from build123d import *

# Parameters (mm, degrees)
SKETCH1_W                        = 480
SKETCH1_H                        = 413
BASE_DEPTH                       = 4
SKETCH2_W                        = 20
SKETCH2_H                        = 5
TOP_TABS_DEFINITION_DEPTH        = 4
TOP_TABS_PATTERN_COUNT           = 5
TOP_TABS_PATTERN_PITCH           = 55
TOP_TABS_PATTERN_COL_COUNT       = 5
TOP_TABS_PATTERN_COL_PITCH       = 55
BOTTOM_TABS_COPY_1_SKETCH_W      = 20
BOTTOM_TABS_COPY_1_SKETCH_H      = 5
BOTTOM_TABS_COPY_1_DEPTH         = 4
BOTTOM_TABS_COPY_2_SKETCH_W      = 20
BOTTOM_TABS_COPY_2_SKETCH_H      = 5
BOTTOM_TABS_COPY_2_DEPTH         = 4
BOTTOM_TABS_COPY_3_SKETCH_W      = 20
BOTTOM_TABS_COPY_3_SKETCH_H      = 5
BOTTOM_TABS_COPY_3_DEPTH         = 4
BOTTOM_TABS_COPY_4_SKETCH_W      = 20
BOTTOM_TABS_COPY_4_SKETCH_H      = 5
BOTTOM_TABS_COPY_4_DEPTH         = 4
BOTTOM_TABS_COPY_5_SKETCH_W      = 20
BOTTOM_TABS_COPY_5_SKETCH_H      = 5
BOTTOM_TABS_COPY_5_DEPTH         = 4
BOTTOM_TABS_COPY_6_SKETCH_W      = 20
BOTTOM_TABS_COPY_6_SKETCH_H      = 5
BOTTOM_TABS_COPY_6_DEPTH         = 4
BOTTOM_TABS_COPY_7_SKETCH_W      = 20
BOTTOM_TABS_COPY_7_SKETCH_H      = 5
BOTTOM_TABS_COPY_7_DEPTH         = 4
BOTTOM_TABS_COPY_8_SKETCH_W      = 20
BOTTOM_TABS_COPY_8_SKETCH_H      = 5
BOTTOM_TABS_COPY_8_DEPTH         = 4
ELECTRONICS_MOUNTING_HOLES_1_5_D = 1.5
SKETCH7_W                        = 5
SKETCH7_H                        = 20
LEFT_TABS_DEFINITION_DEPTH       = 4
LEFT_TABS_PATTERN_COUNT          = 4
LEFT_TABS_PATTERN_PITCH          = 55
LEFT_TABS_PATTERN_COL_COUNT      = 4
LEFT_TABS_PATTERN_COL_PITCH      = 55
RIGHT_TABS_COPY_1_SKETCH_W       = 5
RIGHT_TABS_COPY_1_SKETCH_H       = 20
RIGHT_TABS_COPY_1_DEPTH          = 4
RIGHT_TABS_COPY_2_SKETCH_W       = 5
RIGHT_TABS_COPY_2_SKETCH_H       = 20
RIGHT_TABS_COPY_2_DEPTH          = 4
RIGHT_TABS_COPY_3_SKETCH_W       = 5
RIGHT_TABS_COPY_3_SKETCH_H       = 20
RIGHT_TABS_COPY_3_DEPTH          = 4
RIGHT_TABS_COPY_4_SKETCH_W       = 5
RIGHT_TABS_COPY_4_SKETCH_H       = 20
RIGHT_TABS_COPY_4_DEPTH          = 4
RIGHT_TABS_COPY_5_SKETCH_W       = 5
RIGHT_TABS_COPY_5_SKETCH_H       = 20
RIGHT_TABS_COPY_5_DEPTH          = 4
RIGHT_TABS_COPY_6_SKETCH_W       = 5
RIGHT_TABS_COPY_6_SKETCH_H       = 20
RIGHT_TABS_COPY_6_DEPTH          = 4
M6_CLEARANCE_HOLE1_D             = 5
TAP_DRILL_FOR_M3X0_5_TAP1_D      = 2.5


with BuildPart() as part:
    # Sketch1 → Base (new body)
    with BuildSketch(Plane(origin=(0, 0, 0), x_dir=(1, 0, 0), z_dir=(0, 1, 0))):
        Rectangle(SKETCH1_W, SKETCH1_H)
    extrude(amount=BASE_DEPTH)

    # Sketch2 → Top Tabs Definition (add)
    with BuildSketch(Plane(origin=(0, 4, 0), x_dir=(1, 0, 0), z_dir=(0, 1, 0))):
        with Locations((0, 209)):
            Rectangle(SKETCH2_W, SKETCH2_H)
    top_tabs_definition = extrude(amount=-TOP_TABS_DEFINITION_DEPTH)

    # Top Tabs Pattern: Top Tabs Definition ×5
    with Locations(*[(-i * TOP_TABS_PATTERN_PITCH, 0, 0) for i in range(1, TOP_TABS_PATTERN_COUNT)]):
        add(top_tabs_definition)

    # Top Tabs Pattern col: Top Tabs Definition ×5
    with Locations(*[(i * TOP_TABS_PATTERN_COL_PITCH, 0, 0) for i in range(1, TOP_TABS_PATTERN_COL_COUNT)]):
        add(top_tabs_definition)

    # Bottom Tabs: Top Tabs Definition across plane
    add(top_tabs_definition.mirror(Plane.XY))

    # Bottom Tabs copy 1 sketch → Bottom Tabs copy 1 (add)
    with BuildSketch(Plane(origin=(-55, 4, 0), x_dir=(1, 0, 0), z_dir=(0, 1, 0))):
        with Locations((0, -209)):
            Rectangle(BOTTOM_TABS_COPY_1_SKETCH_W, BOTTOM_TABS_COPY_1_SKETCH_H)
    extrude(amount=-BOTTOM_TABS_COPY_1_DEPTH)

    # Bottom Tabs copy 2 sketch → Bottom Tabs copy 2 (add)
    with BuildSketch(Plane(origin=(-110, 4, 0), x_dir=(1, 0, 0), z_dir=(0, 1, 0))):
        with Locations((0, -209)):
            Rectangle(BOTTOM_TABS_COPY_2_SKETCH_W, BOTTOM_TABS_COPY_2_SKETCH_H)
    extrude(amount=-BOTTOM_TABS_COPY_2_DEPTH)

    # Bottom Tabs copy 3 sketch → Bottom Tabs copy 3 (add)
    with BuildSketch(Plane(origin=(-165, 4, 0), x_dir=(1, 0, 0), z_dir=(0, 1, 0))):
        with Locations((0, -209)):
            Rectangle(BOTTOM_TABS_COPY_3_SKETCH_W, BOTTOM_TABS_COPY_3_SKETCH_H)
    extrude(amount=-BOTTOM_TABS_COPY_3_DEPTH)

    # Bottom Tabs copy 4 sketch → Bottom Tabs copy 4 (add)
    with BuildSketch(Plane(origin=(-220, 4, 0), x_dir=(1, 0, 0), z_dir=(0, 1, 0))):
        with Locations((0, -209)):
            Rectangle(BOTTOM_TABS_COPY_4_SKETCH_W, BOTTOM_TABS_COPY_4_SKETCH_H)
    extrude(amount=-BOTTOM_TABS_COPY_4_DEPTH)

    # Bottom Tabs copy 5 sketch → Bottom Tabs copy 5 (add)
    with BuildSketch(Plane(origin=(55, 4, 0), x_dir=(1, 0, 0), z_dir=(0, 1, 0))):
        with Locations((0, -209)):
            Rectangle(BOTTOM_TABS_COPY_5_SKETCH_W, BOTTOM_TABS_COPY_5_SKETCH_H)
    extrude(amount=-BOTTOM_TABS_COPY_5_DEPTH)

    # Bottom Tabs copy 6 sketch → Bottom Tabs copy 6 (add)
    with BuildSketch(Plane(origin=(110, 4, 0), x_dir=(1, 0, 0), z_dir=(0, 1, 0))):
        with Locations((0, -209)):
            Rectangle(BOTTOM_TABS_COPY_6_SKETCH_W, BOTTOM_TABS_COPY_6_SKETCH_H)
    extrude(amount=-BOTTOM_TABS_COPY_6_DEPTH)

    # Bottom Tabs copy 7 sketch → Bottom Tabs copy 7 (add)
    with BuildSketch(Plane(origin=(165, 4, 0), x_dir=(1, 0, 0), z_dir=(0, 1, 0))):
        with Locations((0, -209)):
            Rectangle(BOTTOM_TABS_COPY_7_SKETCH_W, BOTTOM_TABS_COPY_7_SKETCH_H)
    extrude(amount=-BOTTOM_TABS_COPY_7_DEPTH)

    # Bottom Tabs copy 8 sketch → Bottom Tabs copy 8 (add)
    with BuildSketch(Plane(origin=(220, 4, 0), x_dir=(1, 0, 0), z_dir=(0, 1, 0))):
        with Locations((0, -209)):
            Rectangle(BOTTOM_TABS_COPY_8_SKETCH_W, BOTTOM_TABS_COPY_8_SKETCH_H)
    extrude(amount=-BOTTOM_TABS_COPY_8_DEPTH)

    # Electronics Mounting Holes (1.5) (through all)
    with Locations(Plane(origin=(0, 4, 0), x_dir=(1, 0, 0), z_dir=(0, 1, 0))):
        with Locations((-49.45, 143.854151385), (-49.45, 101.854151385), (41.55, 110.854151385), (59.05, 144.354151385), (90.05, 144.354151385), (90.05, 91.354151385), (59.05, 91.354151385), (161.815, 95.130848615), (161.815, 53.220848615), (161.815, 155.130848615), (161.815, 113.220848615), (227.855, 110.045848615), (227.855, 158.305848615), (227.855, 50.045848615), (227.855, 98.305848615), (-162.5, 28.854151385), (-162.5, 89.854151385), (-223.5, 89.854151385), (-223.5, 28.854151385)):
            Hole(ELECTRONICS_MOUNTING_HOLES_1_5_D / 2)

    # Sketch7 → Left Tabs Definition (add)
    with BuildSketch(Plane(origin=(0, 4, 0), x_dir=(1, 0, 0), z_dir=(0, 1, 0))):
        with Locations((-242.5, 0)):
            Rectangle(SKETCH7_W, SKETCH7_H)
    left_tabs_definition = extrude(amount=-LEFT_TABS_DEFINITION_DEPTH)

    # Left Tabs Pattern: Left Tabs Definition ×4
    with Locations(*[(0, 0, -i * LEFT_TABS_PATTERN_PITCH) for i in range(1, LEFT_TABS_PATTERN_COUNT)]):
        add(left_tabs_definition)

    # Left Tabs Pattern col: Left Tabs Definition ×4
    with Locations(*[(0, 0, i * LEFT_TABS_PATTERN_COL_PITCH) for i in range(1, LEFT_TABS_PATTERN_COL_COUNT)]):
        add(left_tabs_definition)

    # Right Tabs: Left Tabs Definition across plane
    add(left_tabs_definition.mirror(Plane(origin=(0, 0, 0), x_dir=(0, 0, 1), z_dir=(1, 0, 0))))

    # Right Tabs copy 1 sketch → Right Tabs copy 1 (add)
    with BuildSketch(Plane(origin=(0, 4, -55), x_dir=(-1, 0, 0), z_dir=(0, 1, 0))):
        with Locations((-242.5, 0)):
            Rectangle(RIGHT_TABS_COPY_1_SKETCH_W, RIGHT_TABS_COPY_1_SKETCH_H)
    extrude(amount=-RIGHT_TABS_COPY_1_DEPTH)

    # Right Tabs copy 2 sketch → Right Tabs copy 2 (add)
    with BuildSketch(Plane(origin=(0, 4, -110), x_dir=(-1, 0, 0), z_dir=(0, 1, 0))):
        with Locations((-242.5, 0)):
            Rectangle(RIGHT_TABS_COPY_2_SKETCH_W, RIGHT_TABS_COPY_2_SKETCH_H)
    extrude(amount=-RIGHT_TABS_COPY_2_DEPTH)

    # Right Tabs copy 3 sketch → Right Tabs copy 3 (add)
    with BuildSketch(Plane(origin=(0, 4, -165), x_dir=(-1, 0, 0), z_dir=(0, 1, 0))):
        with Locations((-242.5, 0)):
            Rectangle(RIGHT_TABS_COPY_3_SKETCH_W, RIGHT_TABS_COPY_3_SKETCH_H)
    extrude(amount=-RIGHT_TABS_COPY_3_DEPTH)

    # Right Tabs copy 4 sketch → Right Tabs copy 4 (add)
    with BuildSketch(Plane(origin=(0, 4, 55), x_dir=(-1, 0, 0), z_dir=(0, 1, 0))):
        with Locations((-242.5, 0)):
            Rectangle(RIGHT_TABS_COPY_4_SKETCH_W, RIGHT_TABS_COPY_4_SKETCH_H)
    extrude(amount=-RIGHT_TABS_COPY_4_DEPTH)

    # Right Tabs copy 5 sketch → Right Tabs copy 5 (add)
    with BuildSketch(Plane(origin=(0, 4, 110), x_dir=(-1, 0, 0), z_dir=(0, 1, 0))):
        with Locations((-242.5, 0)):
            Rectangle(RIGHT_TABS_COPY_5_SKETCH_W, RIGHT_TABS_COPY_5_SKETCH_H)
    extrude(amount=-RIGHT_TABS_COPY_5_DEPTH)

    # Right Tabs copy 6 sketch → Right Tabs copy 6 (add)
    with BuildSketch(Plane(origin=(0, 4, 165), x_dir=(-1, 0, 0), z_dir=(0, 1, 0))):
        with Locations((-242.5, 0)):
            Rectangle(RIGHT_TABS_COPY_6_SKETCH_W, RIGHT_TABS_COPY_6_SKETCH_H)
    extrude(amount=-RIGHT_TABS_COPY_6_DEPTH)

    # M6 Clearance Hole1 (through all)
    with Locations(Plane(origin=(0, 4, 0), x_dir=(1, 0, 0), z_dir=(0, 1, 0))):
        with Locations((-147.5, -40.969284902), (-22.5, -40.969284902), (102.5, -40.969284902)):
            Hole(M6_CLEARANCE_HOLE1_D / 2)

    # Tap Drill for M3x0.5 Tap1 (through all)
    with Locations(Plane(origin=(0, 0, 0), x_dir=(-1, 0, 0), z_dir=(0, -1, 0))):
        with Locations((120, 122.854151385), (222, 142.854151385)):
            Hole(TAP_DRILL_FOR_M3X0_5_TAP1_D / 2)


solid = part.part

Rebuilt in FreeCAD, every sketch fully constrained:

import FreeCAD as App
import Part
import Sketcher

V = App.Vector


def add_polygon(sketch, points):
    """Adds a closed chain of lines whose ends are joined by coincident constraints."""
    first, n = sketch.GeometryCount, len(points)
    for a, b in zip(points, points[1:] + points[:1]):
        sketch.addGeometry(Part.LineSegment(App.Vector(*a, 0), App.Vector(*b, 0)), False)
    for i in range(n):
        sketch.addConstraint(Sketcher.Constraint("Coincident", first + i, 2, first + (i + 1) % n, 1))

doc = App.newDocument("Part")
body = doc.addObject("PartDesign::Body", "Body")

# Sketch on XZ plane
sketch1 = body.newObject("Sketcher::SketchObject", "Sketch")
sketch1.AttachmentSupport = (doc.getObject("XZ_Plane"), [""])
sketch1.MapMode = "FlatFace"
add_polygon(sketch1, [(-240, -206), (-240, 206), (240, 206), (240, -206)])  # lines 0-3
sketch1.addConstraint([
    Sketcher.Constraint("Vertical", 0),
    Sketcher.Constraint("Horizontal", 1),
    Sketcher.Constraint("Vertical", 2),
    Sketcher.Constraint("Horizontal", 3),
    Sketcher.Constraint("Symmetric", 0, 2, 2, 2, -1, 1),
    Sketcher.Constraint("DistanceX", 1, 1, 1, 2, 480.0),
    Sketcher.Constraint("DistanceY", 0, 1, 0, 2, 413.0),
])
pad1 = body.newObject("PartDesign::Pad", "Pad")
pad1.Profile = sketch1
pad1.Length = 4
pad1.Reversed = True

# Sketch on XZ plane
sketch2 = body.newObject("Sketcher::SketchObject", "Sketch001")
sketch2.AttachmentSupport = (doc.getObject("XZ_Plane"), [""])
sketch2.MapMode = "FlatFace"
sketch2.AttachmentOffset = App.Placement(V(0, 0, -4), App.Rotation())
add_polygon(sketch2, [(-10, -212), (-10, -206), (10, -206), (10, -212)])  # lines 0-3
sketch2.addConstraint([
    Sketcher.Constraint("Vertical", 0),
    Sketcher.Constraint("Horizontal", 1),
    Sketcher.Constraint("Vertical", 2),
    Sketcher.Constraint("Horizontal", 3),
    Sketcher.Constraint("DistanceX", 1, 1, 1, 2, 20.0),
    Sketcher.Constraint("DistanceY", 0, 1, 0, 2, 5.0),
    Sketcher.Constraint("DistanceX", 0, 2, -1, 1, 10.0),
    Sketcher.Constraint("DistanceY", 0, 2, -1, 1, 206.5),
])
pad2 = body.newObject("PartDesign::Pad", "Pad001")
pad2.Profile = sketch2
pad2.Length = 4
doc.recompute()

linearpattern = body.newObject("PartDesign::LinearPattern", "LinearPattern")
linearpattern.Originals = [pad2]
linearpattern.Direction = (doc.getObject("X_Axis"), [""])
linearpattern.Mode = "offset"
linearpattern.Offset = 55
linearpattern.Occurrences = 5
linearpattern.Reversed = True
body.Tip = linearpattern
doc.recompute()

linearpattern2 = body.newObject("PartDesign::LinearPattern", "LinearPattern001")
linearpattern2.Originals = [pad2]
linearpattern2.Direction = (doc.getObject("X_Axis"), [""])
linearpattern2.Mode = "offset"
linearpattern2.Offset = 55
linearpattern2.Occurrences = 5
body.Tip = linearpattern2
doc.recompute()

mirrored = body.newObject("PartDesign::Mirrored", "Mirrored")
mirrored.Originals = [pad2]
mirrored.MirrorPlane = (doc.getObject("XY_Plane"), [""])
body.Tip = mirrored

# Sketch on XZ plane
sketch3 = body.newObject("Sketcher::SketchObject", "Sketch002")
sketch3.AttachmentSupport = (doc.getObject("XZ_Plane"), [""])
sketch3.MapMode = "FlatFace"
sketch3.AttachmentOffset = App.Placement(V(0, 0, -4), App.Rotation())
add_polygon(sketch3, [(-65, 206), (-65, 212), (-45, 212), (-45, 206)])  # lines 0-3
sketch3.addConstraint([
    Sketcher.Constraint("Vertical", 0),
    Sketcher.Constraint("Horizontal", 1),
    Sketcher.Constraint("Vertical", 2),
    Sketcher.Constraint("Horizontal", 3),
    Sketcher.Constraint("DistanceX", 1, 1, 1, 2, 20.0),
    Sketcher.Constraint("DistanceY", 0, 1, 0, 2, 5.0),
    Sketcher.Constraint("DistanceX", 0, 2, -1, 1, 65.0),
    Sketcher.Constraint("DistanceY", -1, 1, 0, 2, 211.5),
])
pad3 = body.newObject("PartDesign::Pad", "Pad002")
pad3.Profile = sketch3
pad3.Length = 4

# Sketch on XZ plane
sketch4 = body.newObject("Sketcher::SketchObject", "Sketch003")
sketch4.AttachmentSupport = (doc.getObject("XZ_Plane"), [""])
sketch4.MapMode = "FlatFace"
sketch4.AttachmentOffset = App.Placement(V(0, 0, -4), App.Rotation())
add_polygon(sketch4, [(-120, 206), (-120, 212), (-100, 212), (-100, 206)])  # lines 0-3
sketch4.addConstraint([
    Sketcher.Constraint("Vertical", 0),
    Sketcher.Constraint("Horizontal", 1),
    Sketcher.Constraint("Vertical", 2),
    Sketcher.Constraint("Horizontal", 3),
    Sketcher.Constraint("DistanceX", 1, 1, 1, 2, 20.0),
    Sketcher.Constraint("DistanceY", 0, 1, 0, 2, 5.0),
    Sketcher.Constraint("DistanceX", 0, 2, -1, 1, 120.0),
    Sketcher.Constraint("DistanceY", -1, 1, 0, 2, 211.5),
])
pad4 = body.newObject("PartDesign::Pad", "Pad003")
pad4.Profile = sketch4
pad4.Length = 4

# Sketch on XZ plane
sketch5 = body.newObject("Sketcher::SketchObject", "Sketch004")
sketch5.AttachmentSupport = (doc.getObject("XZ_Plane"), [""])
sketch5.MapMode = "FlatFace"
sketch5.AttachmentOffset = App.Placement(V(0, 0, -4), App.Rotation())
add_polygon(sketch5, [(-175, 206), (-175, 212), (-155, 212), (-155, 206)])  # lines 0-3
sketch5.addConstraint([
    Sketcher.Constraint("Vertical", 0),
    Sketcher.Constraint("Horizontal", 1),
    Sketcher.Constraint("Vertical", 2),
    Sketcher.Constraint("Horizontal", 3),
    Sketcher.Constraint("DistanceX", 1, 1, 1, 2, 20.0),
    Sketcher.Constraint("DistanceY", 0, 1, 0, 2, 5.0),
    Sketcher.Constraint("DistanceX", 0, 2, -1, 1, 175.0),
    Sketcher.Constraint("DistanceY", -1, 1, 0, 2, 211.5),
])
pad5 = body.newObject("PartDesign::Pad", "Pad004")
pad5.Profile = sketch5
pad5.Length = 4

# Sketch on XZ plane
sketch6 = body.newObject("Sketcher::SketchObject", "Sketch005")
sketch6.AttachmentSupport = (doc.getObject("XZ_Plane"), [""])
sketch6.MapMode = "FlatFace"
sketch6.AttachmentOffset = App.Placement(V(0, 0, -4), App.Rotation())
add_polygon(sketch6, [(-230, 206), (-230, 212), (-210, 212), (-210, 206)])  # lines 0-3
sketch6.addConstraint([
    Sketcher.Constraint("Vertical", 0),
    Sketcher.Constraint("Horizontal", 1),
    Sketcher.Constraint("Vertical", 2),
    Sketcher.Constraint("Horizontal", 3),
    Sketcher.Constraint("DistanceX", 1, 1, 1, 2, 20.0),
    Sketcher.Constraint("DistanceY", 0, 1, 0, 2, 5.0),
    Sketcher.Constraint("DistanceX", 0, 2, -1, 1, 230.0),
    Sketcher.Constraint("DistanceY", -1, 1, 0, 2, 211.5),
])
pad6 = body.newObject("PartDesign::Pad", "Pad005")
pad6.Profile = sketch6
pad6.Length = 4

# Sketch on XZ plane
sketch7 = body.newObject("Sketcher::SketchObject", "Sketch006")
sketch7.AttachmentSupport = (doc.getObject("XZ_Plane"), [""])
sketch7.MapMode = "FlatFace"
sketch7.AttachmentOffset = App.Placement(V(0, 0, -4), App.Rotation())
add_polygon(sketch7, [(45, 206), (45, 212), (65, 212), (65, 206)])  # lines 0-3
sketch7.addConstraint([
    Sketcher.Constraint("Vertical", 0),
    Sketcher.Constraint("Horizontal", 1),
    Sketcher.Constraint("Vertical", 2),
    Sketcher.Constraint("Horizontal", 3),
    Sketcher.Constraint("DistanceX", 1, 1, 1, 2, 20.0),
    Sketcher.Constraint("DistanceY", 0, 1, 0, 2, 5.0),
    Sketcher.Constraint("DistanceX", -1, 1, 0, 2, 45.0),
    Sketcher.Constraint("DistanceY", -1, 1, 0, 2, 211.5),
])
pad7 = body.newObject("PartDesign::Pad", "Pad006")
pad7.Profile = sketch7
pad7.Length = 4

# Sketch on XZ plane
sketch8 = body.newObject("Sketcher::SketchObject", "Sketch007")
sketch8.AttachmentSupport = (doc.getObject("XZ_Plane"), [""])
sketch8.MapMode = "FlatFace"
sketch8.AttachmentOffset = App.Placement(V(0, 0, -4), App.Rotation())
add_polygon(sketch8, [(100, 206), (100, 212), (120, 212), (120, 206)])  # lines 0-3
sketch8.addConstraint([
    Sketcher.Constraint("Vertical", 0),
    Sketcher.Constraint("Horizontal", 1),
    Sketcher.Constraint("Vertical", 2),
    Sketcher.Constraint("Horizontal", 3),
    Sketcher.Constraint("DistanceX", 1, 1, 1, 2, 20.0),
    Sketcher.Constraint("DistanceY", 0, 1, 0, 2, 5.0),
    Sketcher.Constraint("DistanceX", -1, 1, 0, 2, 100.0),
    Sketcher.Constraint("DistanceY", -1, 1, 0, 2, 211.5),
])
pad8 = body.newObject("PartDesign::Pad", "Pad007")
pad8.Profile = sketch8
pad8.Length = 4

# Sketch on XZ plane
sketch9 = body.newObject("Sketcher::SketchObject", "Sketch008")
sketch9.AttachmentSupport = (doc.getObject("XZ_Plane"), [""])
sketch9.MapMode = "FlatFace"
sketch9.AttachmentOffset = App.Placement(V(0, 0, -4), App.Rotation())
add_polygon(sketch9, [(155, 206), (155, 212), (175, 212), (175, 206)])  # lines 0-3
sketch9.addConstraint([
    Sketcher.Constraint("Vertical", 0),
    Sketcher.Constraint("Horizontal", 1),
    Sketcher.Constraint("Vertical", 2),
    Sketcher.Constraint("Horizontal", 3),
    Sketcher.Constraint("DistanceX", 1, 1, 1, 2, 20.0),
    Sketcher.Constraint("DistanceY", 0, 1, 0, 2, 5.0),
    Sketcher.Constraint("DistanceX", -1, 1, 0, 2, 155.0),
    Sketcher.Constraint("DistanceY", -1, 1, 0, 2, 211.5),
])
pad9 = body.newObject("PartDesign::Pad", "Pad008")
pad9.Profile = sketch9
pad9.Length = 4

# Sketch on XZ plane
sketch10 = body.newObject("Sketcher::SketchObject", "Sketch009")
sketch10.AttachmentSupport = (doc.getObject("XZ_Plane"), [""])
sketch10.MapMode = "FlatFace"
sketch10.AttachmentOffset = App.Placement(V(0, 0, -4), App.Rotation())
add_polygon(sketch10, [(210, 206), (210, 212), (230, 212), (230, 206)])  # lines 0-3
sketch10.addConstraint([
    Sketcher.Constraint("Vertical", 0),
    Sketcher.Constraint("Horizontal", 1),
    Sketcher.Constraint("Vertical", 2),
    Sketcher.Constraint("Horizontal", 3),
    Sketcher.Constraint("DistanceX", 1, 1, 1, 2, 20.0),
    Sketcher.Constraint("DistanceY", 0, 1, 0, 2, 5.0),
    Sketcher.Constraint("DistanceX", -1, 1, 0, 2, 210.0),
    Sketcher.Constraint("DistanceY", -1, 1, 0, 2, 211.5),
])
pad10 = body.newObject("PartDesign::Pad", "Pad009")
pad10.Profile = sketch10
pad10.Length = 4

# Sketch on XZ plane
sketch11 = body.newObject("Sketcher::SketchObject", "Sketch010")
sketch11.AttachmentSupport = (doc.getObject("XZ_Plane"), [""])
sketch11.MapMode = "FlatFace"
sketch11.AttachmentOffset = App.Placement(V(0, 0, -4), App.Rotation())
sketch11.addGeometry([
    Part.Circle(V(-49.5, -143.9, 0), V(0, 0, 1), 0.8),  # 0
    Part.Circle(V(-49.5, -101.9, 0), V(0, 0, 1), 0.8),  # 1
    Part.Circle(V(41.5, -110.9, 0), V(0, 0, 1), 0.8),  # 2
    Part.Circle(V(59, -144.4, 0), V(0, 0, 1), 0.8),  # 3
    Part.Circle(V(90, -144.4, 0), V(0, 0, 1), 0.8),  # 4
    Part.Circle(V(90, -91.4, 0), V(0, 0, 1), 0.8),  # 5
    Part.Circle(V(59, -91.4, 0), V(0, 0, 1), 0.8),  # 6
    Part.Circle(V(161.8, -95.1, 0), V(0, 0, 1), 0.8),  # 7
    Part.Circle(V(161.8, -53.2, 0), V(0, 0, 1), 0.8),  # 8
    Part.Circle(V(161.8, -155.1, 0), V(0, 0, 1), 0.8),  # 9
    Part.Circle(V(161.8, -113.2, 0), V(0, 0, 1), 0.8),  # 10
    Part.Circle(V(227.9, -110, 0), V(0, 0, 1), 0.8),  # 11
    Part.Circle(V(227.9, -158.3, 0), V(0, 0, 1), 0.8),  # 12
    Part.Circle(V(227.9, -50, 0), V(0, 0, 1), 0.8),  # 13
    Part.Circle(V(227.9, -98.3, 0), V(0, 0, 1), 0.8),  # 14
    Part.Circle(V(-162.5, -28.9, 0), V(0, 0, 1), 0.8),  # 15
    Part.Circle(V(-162.5, -89.9, 0), V(0, 0, 1), 0.8),  # 16
    Part.Circle(V(-223.5, -89.9, 0), V(0, 0, 1), 0.8),  # 17
    Part.Circle(V(-223.5, -28.9, 0), V(0, 0, 1), 0.8),  # 18
], False)
sketch11.addConstraint([
    Sketcher.Constraint("Equal", 0, 1),
    Sketcher.Constraint("Equal", 1, 2),
    Sketcher.Constraint("Equal", 2, 3),
    Sketcher.Constraint("Equal", 3, 4),
    Sketcher.Constraint("Equal", 4, 5),
    Sketcher.Constraint("Equal", 5, 6),
    Sketcher.Constraint("Equal", 6, 7),
    Sketcher.Constraint("Equal", 7, 8),
    Sketcher.Constraint("Equal", 8, 9),
    Sketcher.Constraint("Equal", 9, 10),
    Sketcher.Constraint("Equal", 10, 11),
    Sketcher.Constraint("Equal", 11, 12),
    Sketcher.Constraint("Equal", 12, 13),
    Sketcher.Constraint("Equal", 13, 14),
    Sketcher.Constraint("Equal", 14, 15),
    Sketcher.Constraint("Equal", 15, 16),
    Sketcher.Constraint("Equal", 16, 17),
    Sketcher.Constraint("Equal", 17, 18),
    Sketcher.Constraint("Horizontal", 3, 3, 4, 3),
    Sketcher.Constraint("Horizontal", 5, 3, 6, 3),
    Sketcher.Constraint("Horizontal", 16, 3, 17, 3),
    Sketcher.Constraint("Horizontal", 15, 3, 18, 3),
    Sketcher.Constraint("Vertical", 0, 3, 1, 3),
    Sketcher.Constraint("Vertical", 4, 3, 5, 3),
    Sketcher.Constraint("Vertical", 3, 3, 6, 3),
    Sketcher.Constraint("Vertical", 7, 3, 8, 3),
    Sketcher.Constraint("Vertical", 8, 3, 9, 3),
    Sketcher.Constraint("Vertical", 9, 3, 10, 3),
    Sketcher.Constraint("Vertical", 11, 3, 12, 3),
    Sketcher.Constraint("Vertical", 12, 3, 13, 3),
    Sketcher.Constraint("Vertical", 13, 3, 14, 3),
    Sketcher.Constraint("Vertical", 15, 3, 16, 3),
    Sketcher.Constraint("Vertical", 17, 3, 18, 3),
    Sketcher.Constraint("Diameter", 0, 1.5),
    Sketcher.Constraint("DistanceY", 0, 3, 1, 3, 42.0),
    Sketcher.Constraint("DistanceX", 1, 3, 2, 3, 91.0),
    Sketcher.Constraint("DistanceY", 2, 3, 1, 3, 9.0),
    Sketcher.Constraint("DistanceX", 3, 3, 4, 3, 31.0),
    Sketcher.Constraint("DistanceY", 4, 3, 5, 3, 53.0),
    Sketcher.Constraint("DistanceY", 9, 3, 7, 3, 60.0),
    Sketcher.Constraint("DistanceY", 10, 3, 8, 3, 60.0),
    Sketcher.Constraint("DistanceY", 11, 3, 13, 3, 60.0),
    Sketcher.Constraint("DistanceY", 12, 3, 14, 3, 60.0),
    Sketcher.Constraint("DistanceY", 1, 3, 15, 3, 73.0),
    Sketcher.Constraint("DistanceY", 16, 3, 15, 3, 61.0),
    Sketcher.Constraint("DistanceX", 17, 3, 16, 3, 61.0),
    Sketcher.Constraint("DistanceX", 15, 3, -1, 1, 162.5),
    Sketcher.Constraint("DistanceX", 2, 3, 3, 3, 17.5),
    Sketcher.Constraint("DistanceY", 3, 3, 2, 3, 33.5),
    Sketcher.Constraint("DistanceX", 0, 3, -1, 1, 49.45),
    Sketcher.Constraint("DistanceY", 7, 3, 8, 3, 41.91),
    Sketcher.Constraint("DistanceX", 10, 3, 11, 3, 66.04),
    Sketcher.Constraint("DistanceY", 12, 3, 11, 3, 48.26),
    Sketcher.Constraint("DistanceX", -1, 1, 7, 3, 161.815),
    Sketcher.Constraint("DistanceY", 10, 3, 11, 3, 3.175),
    Sketcher.Constraint("DistanceY", 0, 3, -1, 1, 143.854151),
    Sketcher.Constraint("DistanceY", 7, 3, -1, 1, 95.130849),
])
doc.recompute()
hole = body.newObject("PartDesign::Hole", "Hole")
hole.Profile = sketch11
hole.ThreadType = "None"
hole.Diameter = 1.5
hole.DepthType = "ThroughAll"
hole.Reversed = True

# Sketch on XZ plane
sketch12 = body.newObject("Sketcher::SketchObject", "Sketch011")
sketch12.AttachmentSupport = (doc.getObject("XZ_Plane"), [""])
sketch12.MapMode = "FlatFace"
sketch12.AttachmentOffset = App.Placement(V(0, 0, -4), App.Rotation())
add_polygon(sketch12, [(-245, -10), (-245, 10), (-240, 10), (-240, -10)])  # lines 0-3
sketch12.addConstraint([
    Sketcher.Constraint("Vertical", 0),
    Sketcher.Constraint("Horizontal", 1),
    Sketcher.Constraint("Vertical", 2),
    Sketcher.Constraint("Horizontal", 3),
    Sketcher.Constraint("DistanceX", 1, 1, 1, 2, 5.0),
    Sketcher.Constraint("DistanceY", 0, 1, 0, 2, 20.0),
    Sketcher.Constraint("DistanceX", 0, 2, -1, 1, 245.0),
    Sketcher.Constraint("DistanceY", -1, 1, 0, 2, 10.0),
])
pad11 = body.newObject("PartDesign::Pad", "Pad010")
pad11.Profile = sketch12
pad11.Length = 4
doc.recompute()

linearpattern3 = body.newObject("PartDesign::LinearPattern", "LinearPattern002")
linearpattern3.Originals = [pad11]
linearpattern3.Direction = (doc.getObject("Z_Axis"), [""])
linearpattern3.Mode = "offset"
linearpattern3.Offset = 55
linearpattern3.Occurrences = 4
linearpattern3.Reversed = True
body.Tip = linearpattern3
doc.recompute()

linearpattern4 = body.newObject("PartDesign::LinearPattern", "LinearPattern003")
linearpattern4.Originals = [pad11]
linearpattern4.Direction = (doc.getObject("Z_Axis"), [""])
linearpattern4.Mode = "offset"
linearpattern4.Offset = 55
linearpattern4.Occurrences = 4
body.Tip = linearpattern4
doc.recompute()

mirrored2 = body.newObject("PartDesign::Mirrored", "Mirrored001")
mirrored2.Originals = [pad11]
mirrored2.MirrorPlane = (doc.getObject("YZ_Plane"), [""])
body.Tip = mirrored2

# Sketch on XZ plane
sketch13 = body.newObject("Sketcher::SketchObject", "Sketch012")
sketch13.AttachmentSupport = (doc.getObject("XZ_Plane"), [""])
sketch13.MapMode = "FlatFace"
sketch13.AttachmentOffset = App.Placement(V(0, 0, -4), App.Rotation())
add_polygon(sketch13, [(245, -45), (245, -65), (240, -65), (240, -45)])  # lines 0-3
sketch13.addConstraint([
    Sketcher.Constraint("Vertical", 0),
    Sketcher.Constraint("Horizontal", 1),
    Sketcher.Constraint("Vertical", 2),
    Sketcher.Constraint("Horizontal", 3),
    Sketcher.Constraint("DistanceX", 1, 2, 1, 1, 5.0),
    Sketcher.Constraint("DistanceY", 0, 2, 0, 1, 20.0),
    Sketcher.Constraint("DistanceX", -1, 1, 0, 2, 245.0),
    Sketcher.Constraint("DistanceY", 0, 2, -1, 1, 65.0),
])
pad12 = body.newObject("PartDesign::Pad", "Pad011")
pad12.Profile = sketch13
pad12.Length = 4

# Sketch on XZ plane
sketch14 = body.newObject("Sketcher::SketchObject", "Sketch013")
sketch14.AttachmentSupport = (doc.getObject("XZ_Plane"), [""])
sketch14.MapMode = "FlatFace"
sketch14.AttachmentOffset = App.Placement(V(0, 0, -4), App.Rotation())
add_polygon(sketch14, [(245, -100), (245, -120), (240, -120), (240, -100)])  # lines 0-3
sketch14.addConstraint([
    Sketcher.Constraint("Vertical", 0),
    Sketcher.Constraint("Horizontal", 1),
    Sketcher.Constraint("Vertical", 2),
    Sketcher.Constraint("Horizontal", 3),
    Sketcher.Constraint("DistanceX", 1, 2, 1, 1, 5.0),
    Sketcher.Constraint("DistanceY", 0, 2, 0, 1, 20.0),
    Sketcher.Constraint("DistanceX", -1, 1, 0, 2, 245.0),
    Sketcher.Constraint("DistanceY", 0, 2, -1, 1, 120.0),
])
pad13 = body.newObject("PartDesign::Pad", "Pad012")
pad13.Profile = sketch14
pad13.Length = 4

# Sketch on XZ plane
sketch15 = body.newObject("Sketcher::SketchObject", "Sketch014")
sketch15.AttachmentSupport = (doc.getObject("XZ_Plane"), [""])
sketch15.MapMode = "FlatFace"
sketch15.AttachmentOffset = App.Placement(V(0, 0, -4), App.Rotation())
add_polygon(sketch15, [(245, -155), (245, -175), (240, -175), (240, -155)])  # lines 0-3
sketch15.addConstraint([
    Sketcher.Constraint("Vertical", 0),
    Sketcher.Constraint("Horizontal", 1),
    Sketcher.Constraint("Vertical", 2),
    Sketcher.Constraint("Horizontal", 3),
    Sketcher.Constraint("DistanceX", 1, 2, 1, 1, 5.0),
    Sketcher.Constraint("DistanceY", 0, 2, 0, 1, 20.0),
    Sketcher.Constraint("DistanceX", -1, 1, 0, 2, 245.0),
    Sketcher.Constraint("DistanceY", 0, 2, -1, 1, 175.0),
])
pad14 = body.newObject("PartDesign::Pad", "Pad013")
pad14.Profile = sketch15
pad14.Length = 4

# Sketch on XZ plane
sketch16 = body.newObject("Sketcher::SketchObject", "Sketch015")
sketch16.AttachmentSupport = (doc.getObject("XZ_Plane"), [""])
sketch16.MapMode = "FlatFace"
sketch16.AttachmentOffset = App.Placement(V(0, 0, -4), App.Rotation())
add_polygon(sketch16, [(245, 65), (245, 45), (240, 45), (240, 65)])  # lines 0-3
sketch16.addConstraint([
    Sketcher.Constraint("Vertical", 0),
    Sketcher.Constraint("Horizontal", 1),
    Sketcher.Constraint("Vertical", 2),
    Sketcher.Constraint("Horizontal", 3),
    Sketcher.Constraint("DistanceX", 1, 2, 1, 1, 5.0),
    Sketcher.Constraint("DistanceY", 0, 2, 0, 1, 20.0),
    Sketcher.Constraint("DistanceX", -1, 1, 0, 2, 245.0),
    Sketcher.Constraint("DistanceY", -1, 1, 0, 2, 45.0),
])
pad15 = body.newObject("PartDesign::Pad", "Pad014")
pad15.Profile = sketch16
pad15.Length = 4

# Sketch on XZ plane
sketch17 = body.newObject("Sketcher::SketchObject", "Sketch016")
sketch17.AttachmentSupport = (doc.getObject("XZ_Plane"), [""])
sketch17.MapMode = "FlatFace"
sketch17.AttachmentOffset = App.Placement(V(0, 0, -4), App.Rotation())
add_polygon(sketch17, [(245, 120), (245, 100), (240, 100), (240, 120)])  # lines 0-3
sketch17.addConstraint([
    Sketcher.Constraint("Vertical", 0),
    Sketcher.Constraint("Horizontal", 1),
    Sketcher.Constraint("Vertical", 2),
    Sketcher.Constraint("Horizontal", 3),
    Sketcher.Constraint("DistanceX", 1, 2, 1, 1, 5.0),
    Sketcher.Constraint("DistanceY", 0, 2, 0, 1, 20.0),
    Sketcher.Constraint("DistanceX", -1, 1, 0, 2, 245.0),
    Sketcher.Constraint("DistanceY", -1, 1, 0, 2, 100.0),
])
pad16 = body.newObject("PartDesign::Pad", "Pad015")
pad16.Profile = sketch17
pad16.Length = 4

# Sketch on XZ plane
sketch18 = body.newObject("Sketcher::SketchObject", "Sketch017")
sketch18.AttachmentSupport = (doc.getObject("XZ_Plane"), [""])
sketch18.MapMode = "FlatFace"
sketch18.AttachmentOffset = App.Placement(V(0, 0, -4), App.Rotation())
add_polygon(sketch18, [(245, 175), (245, 155), (240, 155), (240, 175)])  # lines 0-3
sketch18.addConstraint([
    Sketcher.Constraint("Vertical", 0),
    Sketcher.Constraint("Horizontal", 1),
    Sketcher.Constraint("Vertical", 2),
    Sketcher.Constraint("Horizontal", 3),
    Sketcher.Constraint("DistanceX", 1, 2, 1, 1, 5.0),
    Sketcher.Constraint("DistanceY", 0, 2, 0, 1, 20.0),
    Sketcher.Constraint("DistanceX", -1, 1, 0, 2, 245.0),
    Sketcher.Constraint("DistanceY", -1, 1, 0, 2, 155.0),
])
pad17 = body.newObject("PartDesign::Pad", "Pad016")
pad17.Profile = sketch18
pad17.Length = 4

# Sketch on XZ plane
sketch19 = body.newObject("Sketcher::SketchObject", "Sketch018")
sketch19.AttachmentSupport = (doc.getObject("XZ_Plane"), [""])
sketch19.MapMode = "FlatFace"
sketch19.AttachmentOffset = App.Placement(V(0, 0, -4), App.Rotation())
sketch19.addGeometry([
    Part.Circle(V(-147.5, 41, 0), V(0, 0, 1), 2.5),
    Part.Circle(V(-22.5, 41, 0), V(0, 0, 1), 2.5),
    Part.Circle(V(102.5, 41, 0), V(0, 0, 1), 2.5),
], False)
sketch19.addConstraint([
    Sketcher.Constraint("Equal", 0, 1),
    Sketcher.Constraint("Equal", 1, 2),
    Sketcher.Constraint("Horizontal", 0, 3, 1, 3),
    Sketcher.Constraint("Horizontal", 1, 3, 2, 3),
    Sketcher.Constraint("Diameter", 0, 5.0),
    Sketcher.Constraint("DistanceX", 0, 3, 1, 3, 125.0),
    Sketcher.Constraint("DistanceX", 1, 3, 2, 3, 125.0),
    Sketcher.Constraint("DistanceX", 0, 3, -1, 1, 147.5),
    Sketcher.Constraint("DistanceY", -1, 1, 0, 3, 40.969285),
])
doc.recompute()
hole2 = body.newObject("PartDesign::Hole", "Hole001")
hole2.Profile = sketch19
hole2.ThreadType = "None"
hole2.Diameter = 5
hole2.DepthType = "ThroughAll"
hole2.Reversed = True

# Sketch on XZ plane
sketch20 = body.newObject("Sketcher::SketchObject", "Sketch019")
sketch20.AttachmentSupport = (doc.getObject("XZ_Plane"), [""])
sketch20.MapMode = "FlatFace"
sketch20.addGeometry([
    Part.Circle(V(-120, -122.9, 0), V(0, 0, 1), 1.2),
    Part.Circle(V(-222, -142.9, 0), V(0, 0, 1), 1.2),
], False)
sketch20.addConstraint([
    Sketcher.Constraint("Equal", 0, 1),
    Sketcher.Constraint("Diameter", 0, 2.5),
    Sketcher.Constraint("DistanceX", 0, 3, -1, 1, 120.0),
    Sketcher.Constraint("DistanceX", 1, 3, -1, 1, 222.0),
    Sketcher.Constraint("DistanceY", 1, 3, 0, 3, 20.0),
    Sketcher.Constraint("DistanceY", 0, 3, -1, 1, 122.854151),
])
doc.recompute()
hole3 = body.newObject("PartDesign::Hole", "Hole002")
hole3.Profile = sketch20
hole3.ThreadType = "None"
hole3.Diameter = 2.5
hole3.DepthType = "ThroughAll"

doc.recompute()
